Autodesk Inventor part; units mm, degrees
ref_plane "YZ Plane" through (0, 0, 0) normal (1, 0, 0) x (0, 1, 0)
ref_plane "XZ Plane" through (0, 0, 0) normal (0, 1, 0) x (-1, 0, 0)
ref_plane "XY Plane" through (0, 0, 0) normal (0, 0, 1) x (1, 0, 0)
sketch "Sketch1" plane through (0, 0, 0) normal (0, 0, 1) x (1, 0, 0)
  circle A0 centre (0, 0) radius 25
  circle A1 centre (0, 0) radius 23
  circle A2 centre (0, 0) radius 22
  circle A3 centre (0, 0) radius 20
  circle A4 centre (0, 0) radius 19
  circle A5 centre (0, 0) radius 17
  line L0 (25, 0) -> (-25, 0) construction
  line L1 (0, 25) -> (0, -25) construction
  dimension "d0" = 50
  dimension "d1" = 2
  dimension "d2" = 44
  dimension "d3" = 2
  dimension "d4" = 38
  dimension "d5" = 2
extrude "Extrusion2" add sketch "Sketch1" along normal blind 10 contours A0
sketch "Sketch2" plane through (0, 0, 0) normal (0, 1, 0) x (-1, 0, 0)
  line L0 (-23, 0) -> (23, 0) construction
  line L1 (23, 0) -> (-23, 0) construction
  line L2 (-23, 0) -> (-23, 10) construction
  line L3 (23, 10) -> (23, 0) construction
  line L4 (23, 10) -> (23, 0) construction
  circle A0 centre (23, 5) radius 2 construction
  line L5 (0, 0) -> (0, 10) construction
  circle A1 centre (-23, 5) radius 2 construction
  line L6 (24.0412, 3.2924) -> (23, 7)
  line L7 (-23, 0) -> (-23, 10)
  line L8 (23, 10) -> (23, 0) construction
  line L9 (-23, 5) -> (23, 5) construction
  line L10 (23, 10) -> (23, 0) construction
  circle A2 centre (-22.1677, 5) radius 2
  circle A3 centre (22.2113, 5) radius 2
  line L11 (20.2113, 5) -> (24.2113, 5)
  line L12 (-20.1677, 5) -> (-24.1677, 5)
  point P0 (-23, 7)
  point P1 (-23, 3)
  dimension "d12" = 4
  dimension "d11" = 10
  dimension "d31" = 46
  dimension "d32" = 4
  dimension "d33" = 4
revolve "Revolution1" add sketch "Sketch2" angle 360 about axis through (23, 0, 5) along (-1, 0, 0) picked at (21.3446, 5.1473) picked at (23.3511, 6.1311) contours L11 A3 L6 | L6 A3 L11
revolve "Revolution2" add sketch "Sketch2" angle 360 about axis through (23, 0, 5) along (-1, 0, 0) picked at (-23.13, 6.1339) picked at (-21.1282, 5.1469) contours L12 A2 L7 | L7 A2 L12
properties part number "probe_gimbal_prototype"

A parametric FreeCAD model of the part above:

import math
import FreeCAD as App
import Part
import Sketcher
from FreeCAD import Vector
Q = App.Units.Quantity

doc = App.newDocument("Part")
body = doc.addObject("PartDesign::Body", "Body")

sketch1 = doc.addObject("Sketcher::SketchObject", "Sketch")
body.addObject(sketch1)
sketch1.AttachmentSupport = (doc.XY_Plane, [""])
sketch1.MapMode = "FlatFace"
sketch1.addGeometry([
    Part.Circle(Vector(0, 0, 0), Vector(0, 0, 1), 25),
    Part.Circle(Vector(0, 0, 0), Vector(0, 0, 1), 23),
], False)
sketch1.addConstraint([
    Sketcher.Constraint("Coincident", 0, 3, -1, 1),
    Sketcher.Constraint("Coincident", 1, 3, -1, 1),
    Sketcher.Constraint("Diameter", 0, Q("50 mm")),
    Sketcher.Constraint("Diameter", 1, Q("46 mm")),
])
pad1 = doc.addObject("PartDesign::Pad", "Pad")
body.addObject(pad1)
pad1.Profile = sketch1
pad1.Length = 10

sketch2 = doc.addObject("Sketcher::SketchObject", "Sketch001")
body.addObject(sketch2)
sketch2.AttachmentSupport = (doc.XZ_Plane, [""])
sketch2.MapMode = "FlatFace"
sketch2.addGeometry([
    Part.LineSegment(Vector(-20.2113, 5, 0), Vector(-24.2113, 5, 0)),
    Part.ArcOfCircle(Part.Circle(Vector(-22.2113, 5, 0), Vector(0, 0, 1), 2), math.radians(0), math.radians(180)),
], False)
sketch2.addGeometry(Part.LineSegment(Vector(-20.2113, 5, 0), Vector(-24.2113, 5, 0)), True)
sketch2.addConstraint([
    Sketcher.Constraint("Coincident", 0, 1, 1, 1),
    Sketcher.Constraint("Coincident", 1, 2, 0, 2),
    Sketcher.Constraint("Horizontal", 0),
    Sketcher.Constraint("Horizontal", 2),
    Sketcher.Constraint("Coincident", 2, 1, 0, 1),
    Sketcher.Constraint("Horizontal", 1, 3, 0, 1),
    Sketcher.Constraint("Equal", 0, 2),
    Sketcher.Constraint("Radius", 1, Q("2 mm")),
    Sketcher.Constraint("DistanceY", -1, 1, 1, 3, Q("5 mm")),
    Sketcher.Constraint("DistanceX", 1, 3, -1, 1, Q("22.2113 mm")),
])
revolution = doc.addObject("PartDesign::Revolution", "Revolution")
body.addObject(revolution)
revolution.Profile = sketch2
revolution.ReferenceAxis = (sketch2, ["Axis0"])
revolution.Angle = 360

sketch3 = doc.addObject("Sketcher::SketchObject", "Sketch002")
body.addObject(sketch3)
sketch3.AttachmentSupport = (doc.XZ_Plane, [""])
sketch3.MapMode = "FlatFace"
sketch3.addGeometry([
    Part.LineSegment(Vector(24.1677, 5, 0), Vector(20.1677, 5, 0)),
    Part.ArcOfCircle(Part.Circle(Vector(22.1677, 5, 0), Vector(0, 0, 1), 2), math.radians(0), math.radians(180)),
], False)
sketch3.addGeometry(Part.LineSegment(Vector(24.1677, 5, 0), Vector(20.1677, 5, 0)), True)
sketch3.addConstraint([
    Sketcher.Constraint("Coincident", 0, 1, 1, 1),
    Sketcher.Constraint("Coincident", 1, 2, 0, 2),
    Sketcher.Constraint("Horizontal", 0),
    Sketcher.Constraint("Horizontal", 2),
    Sketcher.Constraint("Coincident", 2, 1, 0, 1),
    Sketcher.Constraint("Horizontal", 1, 3, 0, 1),
    Sketcher.Constraint("Equal", 0, 2),
    Sketcher.Constraint("Radius", 1, Q("2 mm")),
    Sketcher.Constraint("DistanceY", -1, 1, 1, 3, Q("5 mm")),
    Sketcher.Constraint("DistanceX", -1, 1, 1, 3, Q("22.1677 mm")),
])
revolution2 = doc.addObject("PartDesign::Revolution", "Revolution001")
body.addObject(revolution2)
revolution2.Profile = sketch3
revolution2.ReferenceAxis = (sketch3, ["Axis0"])
revolution2.Angle = 360

doc.recompute()
